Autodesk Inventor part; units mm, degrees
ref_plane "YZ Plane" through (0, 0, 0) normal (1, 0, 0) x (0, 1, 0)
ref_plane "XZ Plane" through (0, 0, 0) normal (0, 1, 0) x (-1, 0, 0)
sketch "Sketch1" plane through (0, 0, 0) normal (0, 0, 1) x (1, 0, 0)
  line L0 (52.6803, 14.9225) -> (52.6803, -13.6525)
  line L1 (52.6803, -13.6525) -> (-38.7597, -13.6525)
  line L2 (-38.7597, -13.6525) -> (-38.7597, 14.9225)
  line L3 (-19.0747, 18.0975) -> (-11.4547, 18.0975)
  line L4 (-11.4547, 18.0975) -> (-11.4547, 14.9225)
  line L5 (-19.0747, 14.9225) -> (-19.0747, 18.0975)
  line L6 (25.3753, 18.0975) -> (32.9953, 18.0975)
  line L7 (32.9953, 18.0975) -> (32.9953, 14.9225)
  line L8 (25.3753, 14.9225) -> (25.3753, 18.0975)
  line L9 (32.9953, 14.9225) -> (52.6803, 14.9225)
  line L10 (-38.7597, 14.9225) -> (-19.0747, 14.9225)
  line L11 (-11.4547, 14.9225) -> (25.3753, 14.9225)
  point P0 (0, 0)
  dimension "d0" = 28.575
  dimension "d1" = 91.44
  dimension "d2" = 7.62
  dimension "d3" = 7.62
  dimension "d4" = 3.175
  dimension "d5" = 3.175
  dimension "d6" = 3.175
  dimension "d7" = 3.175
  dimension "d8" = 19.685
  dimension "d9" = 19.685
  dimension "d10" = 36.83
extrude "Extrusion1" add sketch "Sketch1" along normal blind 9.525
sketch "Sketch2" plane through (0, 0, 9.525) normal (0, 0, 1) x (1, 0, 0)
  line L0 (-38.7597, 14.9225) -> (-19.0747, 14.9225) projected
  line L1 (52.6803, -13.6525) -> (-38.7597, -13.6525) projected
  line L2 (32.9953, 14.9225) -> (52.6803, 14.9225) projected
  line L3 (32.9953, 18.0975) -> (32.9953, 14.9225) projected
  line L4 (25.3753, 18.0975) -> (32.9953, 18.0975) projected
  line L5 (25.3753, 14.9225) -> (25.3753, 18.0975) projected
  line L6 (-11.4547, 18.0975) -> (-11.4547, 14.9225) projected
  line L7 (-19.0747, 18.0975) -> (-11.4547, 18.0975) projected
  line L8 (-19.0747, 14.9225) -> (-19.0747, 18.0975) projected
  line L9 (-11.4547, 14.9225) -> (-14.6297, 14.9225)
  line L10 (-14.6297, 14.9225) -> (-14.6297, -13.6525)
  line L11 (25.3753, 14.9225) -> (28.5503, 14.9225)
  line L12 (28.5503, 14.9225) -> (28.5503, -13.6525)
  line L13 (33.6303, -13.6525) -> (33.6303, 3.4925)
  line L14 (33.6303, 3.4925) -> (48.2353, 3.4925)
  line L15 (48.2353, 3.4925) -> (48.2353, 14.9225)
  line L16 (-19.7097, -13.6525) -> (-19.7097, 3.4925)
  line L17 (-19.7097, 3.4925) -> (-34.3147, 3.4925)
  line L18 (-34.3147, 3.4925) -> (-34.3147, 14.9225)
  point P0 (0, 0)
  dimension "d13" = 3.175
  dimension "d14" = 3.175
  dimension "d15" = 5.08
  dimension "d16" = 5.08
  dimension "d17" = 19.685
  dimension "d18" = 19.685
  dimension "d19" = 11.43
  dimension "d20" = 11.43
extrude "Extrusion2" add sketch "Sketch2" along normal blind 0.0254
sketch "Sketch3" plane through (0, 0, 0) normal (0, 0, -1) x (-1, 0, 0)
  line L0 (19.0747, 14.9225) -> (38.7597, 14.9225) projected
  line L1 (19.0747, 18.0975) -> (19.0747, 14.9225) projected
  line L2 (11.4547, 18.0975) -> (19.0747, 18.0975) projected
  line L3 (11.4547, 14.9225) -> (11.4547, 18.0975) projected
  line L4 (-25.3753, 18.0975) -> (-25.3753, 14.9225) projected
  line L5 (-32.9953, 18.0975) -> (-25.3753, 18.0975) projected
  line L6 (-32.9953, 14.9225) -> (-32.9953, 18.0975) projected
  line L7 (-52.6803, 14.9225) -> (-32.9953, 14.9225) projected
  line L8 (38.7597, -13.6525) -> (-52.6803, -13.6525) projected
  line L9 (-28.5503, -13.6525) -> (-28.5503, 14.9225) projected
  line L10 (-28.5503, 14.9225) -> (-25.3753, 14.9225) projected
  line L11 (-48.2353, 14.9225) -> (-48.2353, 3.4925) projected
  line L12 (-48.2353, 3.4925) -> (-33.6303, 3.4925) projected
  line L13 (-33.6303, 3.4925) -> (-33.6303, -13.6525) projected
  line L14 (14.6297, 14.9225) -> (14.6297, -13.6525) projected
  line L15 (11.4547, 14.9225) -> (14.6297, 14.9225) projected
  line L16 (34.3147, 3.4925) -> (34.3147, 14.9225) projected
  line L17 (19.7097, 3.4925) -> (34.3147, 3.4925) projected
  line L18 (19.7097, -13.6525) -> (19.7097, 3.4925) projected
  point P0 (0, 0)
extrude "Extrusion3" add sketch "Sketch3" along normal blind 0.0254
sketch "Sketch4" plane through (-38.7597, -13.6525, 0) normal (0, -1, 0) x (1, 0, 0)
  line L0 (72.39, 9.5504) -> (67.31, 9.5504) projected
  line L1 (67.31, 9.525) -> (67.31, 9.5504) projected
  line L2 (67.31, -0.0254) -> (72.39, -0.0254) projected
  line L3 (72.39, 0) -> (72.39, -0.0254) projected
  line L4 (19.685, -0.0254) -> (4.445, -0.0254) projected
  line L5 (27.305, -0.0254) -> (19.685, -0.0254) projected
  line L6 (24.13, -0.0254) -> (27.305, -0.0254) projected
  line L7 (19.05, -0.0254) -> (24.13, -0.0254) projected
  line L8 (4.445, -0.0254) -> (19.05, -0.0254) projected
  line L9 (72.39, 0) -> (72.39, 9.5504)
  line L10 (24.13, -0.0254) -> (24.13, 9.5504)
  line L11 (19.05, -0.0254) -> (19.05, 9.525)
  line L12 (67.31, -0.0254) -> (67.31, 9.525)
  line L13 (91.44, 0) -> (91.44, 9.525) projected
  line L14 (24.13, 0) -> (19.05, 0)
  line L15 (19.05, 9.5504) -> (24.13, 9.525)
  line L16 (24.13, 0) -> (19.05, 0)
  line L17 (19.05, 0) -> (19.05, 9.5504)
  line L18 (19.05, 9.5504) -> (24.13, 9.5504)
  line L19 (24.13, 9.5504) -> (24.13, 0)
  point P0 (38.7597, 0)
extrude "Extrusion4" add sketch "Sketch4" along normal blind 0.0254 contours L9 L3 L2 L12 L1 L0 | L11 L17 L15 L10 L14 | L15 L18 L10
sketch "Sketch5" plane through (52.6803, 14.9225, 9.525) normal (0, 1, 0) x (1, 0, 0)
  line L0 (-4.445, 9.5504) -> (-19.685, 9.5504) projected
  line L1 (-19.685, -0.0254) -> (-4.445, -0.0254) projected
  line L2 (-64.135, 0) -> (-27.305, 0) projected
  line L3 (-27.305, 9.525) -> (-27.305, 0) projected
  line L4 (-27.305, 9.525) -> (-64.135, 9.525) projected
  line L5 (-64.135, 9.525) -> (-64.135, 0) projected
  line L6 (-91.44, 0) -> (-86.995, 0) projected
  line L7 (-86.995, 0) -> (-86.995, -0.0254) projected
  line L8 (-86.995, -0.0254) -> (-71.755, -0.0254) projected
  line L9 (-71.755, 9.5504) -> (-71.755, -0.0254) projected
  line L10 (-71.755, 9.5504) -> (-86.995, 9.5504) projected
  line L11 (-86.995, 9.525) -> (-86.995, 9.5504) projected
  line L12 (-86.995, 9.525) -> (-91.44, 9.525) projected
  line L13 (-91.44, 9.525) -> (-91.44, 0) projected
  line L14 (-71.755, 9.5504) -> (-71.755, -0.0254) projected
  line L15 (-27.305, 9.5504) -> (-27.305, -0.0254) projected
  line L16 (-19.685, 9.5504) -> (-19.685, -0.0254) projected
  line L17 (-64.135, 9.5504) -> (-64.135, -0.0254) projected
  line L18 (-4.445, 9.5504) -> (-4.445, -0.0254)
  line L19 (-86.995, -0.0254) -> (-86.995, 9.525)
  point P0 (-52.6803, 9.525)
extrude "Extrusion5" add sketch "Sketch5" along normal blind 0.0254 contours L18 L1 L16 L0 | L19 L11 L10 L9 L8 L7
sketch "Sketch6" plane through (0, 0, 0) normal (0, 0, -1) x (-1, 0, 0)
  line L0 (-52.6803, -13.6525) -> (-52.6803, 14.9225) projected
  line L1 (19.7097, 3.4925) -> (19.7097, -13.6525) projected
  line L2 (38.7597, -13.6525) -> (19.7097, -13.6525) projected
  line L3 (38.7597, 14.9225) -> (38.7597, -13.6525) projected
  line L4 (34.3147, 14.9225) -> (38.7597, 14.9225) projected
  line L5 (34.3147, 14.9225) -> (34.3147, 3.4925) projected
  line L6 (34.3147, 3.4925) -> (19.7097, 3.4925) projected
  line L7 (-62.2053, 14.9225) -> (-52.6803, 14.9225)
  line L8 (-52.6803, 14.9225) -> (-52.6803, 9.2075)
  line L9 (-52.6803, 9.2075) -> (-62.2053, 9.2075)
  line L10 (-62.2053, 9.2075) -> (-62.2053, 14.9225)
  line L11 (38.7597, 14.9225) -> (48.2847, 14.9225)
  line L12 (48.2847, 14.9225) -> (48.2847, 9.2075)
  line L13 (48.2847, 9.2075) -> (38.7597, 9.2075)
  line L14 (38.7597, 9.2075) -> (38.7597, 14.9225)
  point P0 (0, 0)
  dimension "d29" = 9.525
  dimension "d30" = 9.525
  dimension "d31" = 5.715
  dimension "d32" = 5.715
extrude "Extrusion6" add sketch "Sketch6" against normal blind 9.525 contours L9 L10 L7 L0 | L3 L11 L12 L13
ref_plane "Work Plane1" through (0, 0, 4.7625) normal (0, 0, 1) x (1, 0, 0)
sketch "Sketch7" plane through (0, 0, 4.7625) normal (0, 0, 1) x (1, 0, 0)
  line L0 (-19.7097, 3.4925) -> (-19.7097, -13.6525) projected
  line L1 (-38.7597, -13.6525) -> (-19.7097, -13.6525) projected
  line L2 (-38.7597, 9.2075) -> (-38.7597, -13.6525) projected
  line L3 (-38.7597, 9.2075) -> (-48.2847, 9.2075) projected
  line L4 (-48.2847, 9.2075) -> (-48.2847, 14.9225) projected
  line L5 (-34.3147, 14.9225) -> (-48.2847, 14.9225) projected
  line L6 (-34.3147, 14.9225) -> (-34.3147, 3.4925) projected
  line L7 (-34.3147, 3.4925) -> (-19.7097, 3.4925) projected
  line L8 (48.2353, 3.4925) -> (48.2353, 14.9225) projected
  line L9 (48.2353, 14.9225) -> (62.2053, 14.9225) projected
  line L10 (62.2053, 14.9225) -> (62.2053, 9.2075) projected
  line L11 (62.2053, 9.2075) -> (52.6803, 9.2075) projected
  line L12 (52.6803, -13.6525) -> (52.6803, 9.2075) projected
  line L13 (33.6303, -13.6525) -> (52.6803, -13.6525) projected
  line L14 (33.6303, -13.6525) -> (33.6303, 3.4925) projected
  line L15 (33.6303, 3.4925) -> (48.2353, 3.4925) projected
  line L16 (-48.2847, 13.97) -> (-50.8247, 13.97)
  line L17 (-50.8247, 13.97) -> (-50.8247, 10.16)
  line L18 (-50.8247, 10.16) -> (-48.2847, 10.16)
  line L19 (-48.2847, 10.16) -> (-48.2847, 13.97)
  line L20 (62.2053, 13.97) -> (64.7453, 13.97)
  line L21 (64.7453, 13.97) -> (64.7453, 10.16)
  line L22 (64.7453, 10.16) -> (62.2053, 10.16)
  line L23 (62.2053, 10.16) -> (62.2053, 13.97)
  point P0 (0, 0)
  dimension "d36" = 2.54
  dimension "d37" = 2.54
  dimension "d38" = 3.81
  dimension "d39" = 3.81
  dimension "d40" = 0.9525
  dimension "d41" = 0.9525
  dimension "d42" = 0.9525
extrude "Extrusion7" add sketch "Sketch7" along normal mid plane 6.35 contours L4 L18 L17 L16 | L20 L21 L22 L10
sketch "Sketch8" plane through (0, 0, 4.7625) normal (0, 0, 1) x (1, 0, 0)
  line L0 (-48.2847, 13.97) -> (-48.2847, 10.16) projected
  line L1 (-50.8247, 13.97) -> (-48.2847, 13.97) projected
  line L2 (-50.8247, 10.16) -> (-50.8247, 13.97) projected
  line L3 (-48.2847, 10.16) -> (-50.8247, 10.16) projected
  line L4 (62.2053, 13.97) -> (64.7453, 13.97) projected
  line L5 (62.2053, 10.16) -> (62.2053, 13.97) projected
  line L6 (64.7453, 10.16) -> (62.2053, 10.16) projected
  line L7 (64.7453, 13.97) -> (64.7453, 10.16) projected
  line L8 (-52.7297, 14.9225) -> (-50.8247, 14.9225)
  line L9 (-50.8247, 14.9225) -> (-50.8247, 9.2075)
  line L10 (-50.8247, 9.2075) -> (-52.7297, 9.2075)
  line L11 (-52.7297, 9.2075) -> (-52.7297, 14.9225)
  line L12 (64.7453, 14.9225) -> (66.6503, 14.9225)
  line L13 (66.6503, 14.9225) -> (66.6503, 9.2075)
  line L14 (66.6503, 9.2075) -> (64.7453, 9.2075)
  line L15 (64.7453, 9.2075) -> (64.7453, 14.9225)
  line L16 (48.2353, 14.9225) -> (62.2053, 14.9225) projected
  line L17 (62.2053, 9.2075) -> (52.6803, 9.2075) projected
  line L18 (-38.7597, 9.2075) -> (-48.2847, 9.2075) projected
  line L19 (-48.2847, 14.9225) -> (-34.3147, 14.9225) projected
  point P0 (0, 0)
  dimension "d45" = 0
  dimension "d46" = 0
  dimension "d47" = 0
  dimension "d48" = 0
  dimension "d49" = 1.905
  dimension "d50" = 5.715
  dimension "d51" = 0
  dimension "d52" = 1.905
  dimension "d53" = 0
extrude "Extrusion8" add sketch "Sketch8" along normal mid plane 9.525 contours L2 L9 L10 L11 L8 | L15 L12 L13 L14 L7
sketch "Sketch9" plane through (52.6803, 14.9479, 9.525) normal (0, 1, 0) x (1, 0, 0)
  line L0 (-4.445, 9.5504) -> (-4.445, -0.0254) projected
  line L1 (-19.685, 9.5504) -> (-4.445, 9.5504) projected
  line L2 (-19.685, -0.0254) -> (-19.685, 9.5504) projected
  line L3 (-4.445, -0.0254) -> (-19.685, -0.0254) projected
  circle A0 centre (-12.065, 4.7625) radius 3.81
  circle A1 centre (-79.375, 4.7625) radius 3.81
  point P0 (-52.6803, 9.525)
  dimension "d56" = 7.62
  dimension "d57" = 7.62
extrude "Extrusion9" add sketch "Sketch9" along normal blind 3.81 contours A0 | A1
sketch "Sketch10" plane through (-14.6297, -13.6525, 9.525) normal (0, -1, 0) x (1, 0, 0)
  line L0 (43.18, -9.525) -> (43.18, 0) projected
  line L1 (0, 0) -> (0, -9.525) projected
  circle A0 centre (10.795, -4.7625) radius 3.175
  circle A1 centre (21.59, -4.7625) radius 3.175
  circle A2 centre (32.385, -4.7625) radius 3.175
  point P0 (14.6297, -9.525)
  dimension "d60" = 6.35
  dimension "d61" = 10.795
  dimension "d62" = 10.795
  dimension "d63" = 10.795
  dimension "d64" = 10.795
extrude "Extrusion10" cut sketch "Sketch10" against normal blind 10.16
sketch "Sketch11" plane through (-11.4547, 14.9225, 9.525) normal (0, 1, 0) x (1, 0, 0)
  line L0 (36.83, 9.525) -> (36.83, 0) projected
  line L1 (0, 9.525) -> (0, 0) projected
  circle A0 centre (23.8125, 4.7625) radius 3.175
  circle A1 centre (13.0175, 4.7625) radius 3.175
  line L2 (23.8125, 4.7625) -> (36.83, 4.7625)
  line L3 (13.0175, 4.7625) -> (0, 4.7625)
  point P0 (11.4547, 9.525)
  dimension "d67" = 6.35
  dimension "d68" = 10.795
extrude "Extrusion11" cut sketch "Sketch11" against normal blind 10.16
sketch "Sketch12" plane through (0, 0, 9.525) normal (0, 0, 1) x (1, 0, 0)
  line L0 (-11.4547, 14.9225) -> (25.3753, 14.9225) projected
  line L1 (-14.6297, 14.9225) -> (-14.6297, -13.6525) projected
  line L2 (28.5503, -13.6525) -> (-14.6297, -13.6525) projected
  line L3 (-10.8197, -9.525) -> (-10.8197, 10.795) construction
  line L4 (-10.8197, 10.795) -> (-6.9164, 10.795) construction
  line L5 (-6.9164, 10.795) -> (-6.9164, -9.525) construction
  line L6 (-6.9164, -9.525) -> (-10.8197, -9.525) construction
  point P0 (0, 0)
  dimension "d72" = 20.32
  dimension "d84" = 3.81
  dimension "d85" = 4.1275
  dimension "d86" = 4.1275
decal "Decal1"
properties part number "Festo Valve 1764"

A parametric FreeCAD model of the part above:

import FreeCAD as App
import Part
import Sketcher
Q = App.Units.Quantity


def add_polygon(sketch, points):
    """Adds a closed chain of lines whose ends are joined by coincident constraints."""
    first, n = sketch.GeometryCount, len(points)
    for a, b in zip(points, points[1:] + points[:1]):
        sketch.addGeometry(Part.LineSegment(App.Vector(*a, 0), App.Vector(*b, 0)), False)
    for i in range(n):
        sketch.addConstraint(Sketcher.Constraint("Coincident", first + i, 2, first + (i + 1) % n, 1))

doc = App.newDocument("Part")
body = doc.addObject("PartDesign::Body", "Body")

sketch1 = doc.addObject("Sketcher::SketchObject", "Sketch")
body.addObject(sketch1)
sketch1.AttachmentSupport = (doc.XY_Plane, [""])
sketch1.MapMode = "FlatFace"
add_polygon(sketch1, [(52.7, -13.7), (52.7, 14.9), (33, 14.9), (33, 18.1), (25.4, 18.1), (25.4, 14.9), (-11.5, 14.9), (-11.5, 18.1), (-19.1, 18.1), (-19.1, 14.9), (-38.8, 14.9), (-38.8, -13.7)])
sketch1.addConstraint([
    Sketcher.Constraint("Vertical", 0),
    Sketcher.Constraint("Horizontal", 1),
    Sketcher.Constraint("Vertical", 2),
    Sketcher.Constraint("Horizontal", 3),
    Sketcher.Constraint("Vertical", 4),
    Sketcher.Constraint("Horizontal", 5),
    Sketcher.Constraint("Vertical", 6),
    Sketcher.Constraint("Horizontal", 7),
    Sketcher.Constraint("Vertical", 8),
    Sketcher.Constraint("Horizontal", 9),
    Sketcher.Constraint("Vertical", 10),
    Sketcher.Constraint("Horizontal", 11),
    Sketcher.Constraint("Horizontal", 1, 2, 4, 2),
    Sketcher.Constraint("Horizontal", 3, 2, 6, 2),
    Sketcher.Constraint("Horizontal", 5, 2, 8, 2),
    Sketcher.Constraint("Equal", 3, 7),
    Sketcher.Constraint("Equal", 1, 9),
    Sketcher.Constraint("DistanceX", 3, 2, 3, 1, Q("0.3 in")),
    Sketcher.Constraint("DistanceX", 11, 1, 11, 2, Q("3.6 in")),
    Sketcher.Constraint("DistanceX", 5, 2, 5, 1, Q("1.45 in")),
    Sketcher.Constraint("DistanceY", 0, 1, 0, 2, Q("1.125 in")),
    Sketcher.Constraint("DistanceY", 2, 1, 2, 2, Q("0.125 in")),
    Sketcher.Constraint("DistanceY", -1, 1, 0, 2, Q("0.5875 in")),
    Sketcher.Constraint("DistanceX", -1, 1, 0, 2, Q("52.6803 mm")),
])
pad1 = doc.addObject("PartDesign::Pad", "Pad")
body.addObject(pad1)
pad1.Profile = sketch1
pad1.Length = Q("0.375 in")

sketch2 = doc.addObject("Sketcher::SketchObject", "Sketch001")
body.addObject(sketch2)
sketch2.AttachmentSupport = (doc.XY_Plane, [""])
sketch2.MapMode = "FlatFace"
sketch2.AttachmentOffset = App.Placement(App.Vector(0, 0, 0.375 * 25.4), App.Rotation())
add_polygon(sketch2, [(28.6, 14.9), (28.6, -13.7), (33.6, -13.7), (33.6, 3.5), (48.2, 3.5), (48.2, 14.9), (33, 14.9), (33, 18.1), (25.4, 18.1), (25.4, 14.9)])
add_polygon(sketch2, [(-19.1, 14.9), (-34.3, 14.9), (-34.3, 3.5), (-19.7, 3.5), (-19.7, -13.7), (-14.6, -13.7), (-14.6, 14.9), (-11.5, 14.9), (-11.5, 18.1), (-19.1, 18.1)])
sketch2.addConstraint([
    Sketcher.Constraint("Vertical", 0),
    Sketcher.Constraint("Horizontal", 1),
    Sketcher.Constraint("Vertical", 2),
    Sketcher.Constraint("Horizontal", 3),
    Sketcher.Constraint("Vertical", 4),
    Sketcher.Constraint("Horizontal", 5),
    Sketcher.Constraint("Vertical", 6),
    Sketcher.Constraint("Horizontal", 7),
    Sketcher.Constraint("Vertical", 8),
    Sketcher.Constraint("Horizontal", 9),
    Sketcher.Constraint("Horizontal", 10),
    Sketcher.Constraint("Vertical", 11),
    Sketcher.Constraint("Horizontal", 12),
    Sketcher.Constraint("Vertical", 13),
    Sketcher.Constraint("Horizontal", 14),
    Sketcher.Constraint("Vertical", 15),
    Sketcher.Constraint("Horizontal", 16),
    Sketcher.Constraint("Vertical", 17),
    Sketcher.Constraint("Horizontal", 18),
    Sketcher.Constraint("Vertical", 19),
    Sketcher.Constraint("Horizontal", 5, 2, 8, 2),
    Sketcher.Constraint("Horizontal", 9, 2, 10, 2),
    Sketcher.Constraint("Horizontal", 3, 2, 11, 2),
    Sketcher.Constraint("Horizontal", 1, 2, 13, 2),
    Sketcher.Constraint("Horizontal", 10, 2, 15, 2),
    Sketcher.Constraint("Horizontal", 7, 2, 17, 2),
    Sketcher.Constraint("Equal", 5, 10),
    Sketcher.Constraint("Equal", 3, 12),
    Sketcher.Constraint("Equal", 1, 14),
    Sketcher.Constraint("Equal", 9, 16),
    Sketcher.Constraint("Equal", 16, 6),
    Sketcher.Constraint("DistanceX", 1, 1, 1, 2, Q("0.2 in")),
    Sketcher.Constraint("DistanceY", 4, 1, 4, 2, Q("0.45 in")),
    Sketcher.Constraint("DistanceX", 9, 1, 9, 2, Q("0.125 in")),
    Sketcher.Constraint("DistanceX", 5, 2, 5, 1, Q("0.6 in")),
    Sketcher.Constraint("DistanceX", 7, 2, 7, 1, Q("0.3 in")),
    Sketcher.Constraint("DistanceX", 12, 2, 9, 2, Q("1.9 in")),
    Sketcher.Constraint("DistanceY", 0, 2, 0, 1, Q("1.125 in")),
    Sketcher.Constraint("DistanceY", 0, 2, -1, 1, Q("0.5375 in")),
    Sketcher.Constraint("DistanceX", -1, 1, 0, 2, Q("28.5503 mm")),
])
pad2 = doc.addObject("PartDesign::Pad", "Pad001")
body.addObject(pad2)
pad2.Profile = sketch2
pad2.Length = Q("0.001 in")

sketch3 = doc.addObject("Sketcher::SketchObject", "Sketch002")
body.addObject(sketch3)
sketch3.AttachmentSupport = (doc.XY_Plane, [""])
sketch3.MapMode = "FlatFace"
add_polygon(sketch3, [(33.6, -13.7), (28.6, -13.7), (28.6, 14.9), (25.4, 14.9), (25.4, 18.1), (33, 18.1), (33, 14.9), (48.2, 14.9), (48.2, 3.5), (33.6, 3.5)])
add_polygon(sketch3, [(-34.3, 14.9), (-19.1, 14.9), (-19.1, 18.1), (-11.5, 18.1), (-11.5, 14.9), (-14.6, 14.9), (-14.6, -13.7), (-19.7, -13.7), (-19.7, 3.5), (-34.3, 3.5)])
sketch3.addConstraint([
    Sketcher.Constraint("Horizontal", 0),
    Sketcher.Constraint("Vertical", 1),
    Sketcher.Constraint("Horizontal", 2),
    Sketcher.Constraint("Vertical", 3),
    Sketcher.Constraint("Horizontal", 4),
    Sketcher.Constraint("Vertical", 5),
    Sketcher.Constraint("Horizontal", 6),
    Sketcher.Constraint("Vertical", 7),
    Sketcher.Constraint("Horizontal", 8),
    Sketcher.Constraint("Vertical", 9),
    Sketcher.Constraint("Horizontal", 10),
    Sketcher.Constraint("Vertical", 11),
    Sketcher.Constraint("Horizontal", 12),
    Sketcher.Constraint("Vertical", 13),
    Sketcher.Constraint("Horizontal", 14),
    Sketcher.Constraint("Vertical", 15),
    Sketcher.Constraint("Horizontal", 16),
    Sketcher.Constraint("Vertical", 17),
    Sketcher.Constraint("Horizontal", 18),
    Sketcher.Constraint("Vertical", 19),
    Sketcher.Constraint("Horizontal", 2, 2, 5, 2),
    Sketcher.Constraint("Horizontal", 6, 2, 10, 2),
    Sketcher.Constraint("Horizontal", 4, 2, 11, 2),
    Sketcher.Constraint("Horizontal", 10, 2, 13, 2),
    Sketcher.Constraint("Horizontal", 9, 2, 15, 2),
    Sketcher.Constraint("Horizontal", 8, 2, 17, 2),
    Sketcher.Constraint("Equal", 6, 10),
    Sketcher.Constraint("Equal", 4, 12),
    Sketcher.Constraint("Equal", 2, 14),
    Sketcher.Constraint("Equal", 0, 16),
    Sketcher.Constraint("Equal", 14, 3),
    Sketcher.Constraint("DistanceX", 0, 2, 0, 1, Q("0.2 in")),
    Sketcher.Constraint("DistanceX", 4, 1, 4, 2, Q("0.3 in")),
    Sketcher.Constraint("DistanceX", 6, 1, 6, 2, Q("0.6 in")),
    Sketcher.Constraint("DistanceY", 7, 2, 7, 1, Q("0.45 in")),
    Sketcher.Constraint("DistanceX", 2, 2, 2, 1, Q("0.125 in")),
    Sketcher.Constraint("DistanceY", 1, 1, 1, 2, Q("1.125 in")),
    Sketcher.Constraint("DistanceX", 10, 2, 2, 2, Q("1.75 in")),
    Sketcher.Constraint("DistanceY", 0, 2, -1, 1, Q("0.5375 in")),
    Sketcher.Constraint("DistanceX", -1, 1, 0, 2, Q("28.5503 mm")),
])
pad3 = doc.addObject("PartDesign::Pad", "Pad002")
body.addObject(pad3)
pad3.Profile = sketch3
pad3.Length = Q("0.001 in")
pad3.Reversed = True

sketch4 = doc.addObject("Sketcher::SketchObject", "Sketch003")
body.addObject(sketch4)
sketch4.AttachmentSupport = (doc.XZ_Plane, [""])
sketch4.MapMode = "FlatFace"
sketch4.AttachmentOffset = App.Placement(App.Vector(0, 0, 0.5375 * 25.4), App.Rotation())
add_polygon(sketch4, [(34, 0), (34, 10), (29, 10), (29, 0)])
add_polygon(sketch4, [(-20, 0), (-15, 0), (-15, 10), (-20, 10)])
sketch4.addConstraint([
    Sketcher.Constraint("Vertical", 0),
    Sketcher.Constraint("Horizontal", 1),
    Sketcher.Constraint("Vertical", 2),
    Sketcher.Constraint("Horizontal", 3),
    Sketcher.Constraint("Horizontal", 4),
    Sketcher.Constraint("Vertical", 5),
    Sketcher.Constraint("Horizontal", 6),
    Sketcher.Constraint("Vertical", 7),
    Sketcher.Constraint("PointOnObject", 4, 2, -1),
    Sketcher.Constraint("Horizontal", 1, 2, 5, 2),
    Sketcher.Constraint("Equal", 3, 4),
    Sketcher.Constraint("DistanceX", 1, 2, 1, 1, Q("0.2 in")),
    Sketcher.Constraint("DistanceX", 4, 2, 2, 2, Q("1.7 in")),
    Sketcher.Constraint("DistanceY", 0, 1, 0, 2, Q("0.377 in")),
    Sketcher.Constraint("DistanceY", 5, 1, 5, 2, Q("0.376 in")),
    Sketcher.Constraint("DistanceX", -1, 1, 0, 2, Q("33.6303 mm")),
])
pad4 = doc.addObject("PartDesign::Pad", "Pad003")
body.addObject(pad4)
pad4.Profile = sketch4
pad4.Length = Q("0.001 in")

sketch5 = doc.addObject("Sketcher::SketchObject", "Sketch004")
body.addObject(sketch5)
sketch5.AttachmentSupport = (doc.XZ_Plane, [""])
sketch5.MapMode = "FlatFace"
sketch5.AttachmentOffset = App.Placement(App.Vector(0, 0, -0.5875 * 25.4), App.Rotation())
add_polygon(sketch5, [(48, 10), (48, 0), (33, 0), (33, 10)])
add_polygon(sketch5, [(-34, 0), (-34, 10), (-19, 10), (-19, 0)])
sketch5.addConstraint([
    Sketcher.Constraint("Vertical", 0),
    Sketcher.Constraint("Horizontal", 1),
    Sketcher.Constraint("Vertical", 2),
    Sketcher.Constraint("Horizontal", 3),
    Sketcher.Constraint("Vertical", 4),
    Sketcher.Constraint("Horizontal", 5),
    Sketcher.Constraint("Vertical", 6),
    Sketcher.Constraint("Horizontal", 7),
    Sketcher.Constraint("Horizontal", 3, 2, 4, 2),
    Sketcher.Constraint("Horizontal", 1, 2, 6, 2),
    Sketcher.Constraint("Equal", 3, 5),
    Sketcher.Constraint("DistanceX", 1, 2, 1, 1, Q("0.6 in")),
    Sketcher.Constraint("DistanceY", 0, 2, 0, 1, Q("0.377 in")),
    Sketcher.Constraint("DistanceX", 4, 2, 2, 2, Q("2.65 in")),
    Sketcher.Constraint("DistanceY", 0, 2, -1, 1, Q("0.001 in")),
    Sketcher.Constraint("DistanceX", -1, 1, 0, 2, Q("48.2353 mm")),
])
pad5 = doc.addObject("PartDesign::Pad", "Pad004")
body.addObject(pad5)
pad5.Profile = sketch5
pad5.Length = Q("0.001 in")
pad5.Reversed = True

sketch6 = doc.addObject("Sketcher::SketchObject", "Sketch005")
body.addObject(sketch6)
sketch6.AttachmentSupport = (doc.XY_Plane, [""])
sketch6.MapMode = "FlatFace"
add_polygon(sketch6, [(62, 9), (53, 9), (53, 15), (62, 15)])
add_polygon(sketch6, [(-39, 15), (-39, 9), (-48, 9), (-48, 15)])
sketch6.addConstraint([
    Sketcher.Constraint("Horizontal", 0),
    Sketcher.Constraint("Vertical", 1),
    Sketcher.Constraint("Horizontal", 2),
    Sketcher.Constraint("Vertical", 3),
    Sketcher.Constraint("Vertical", 4),
    Sketcher.Constraint("Horizontal", 5),
    Sketcher.Constraint("Vertical", 6),
    Sketcher.Constraint("Horizontal", 7),
    Sketcher.Constraint("Horizontal", 3, 2, 4, 2),
    Sketcher.Constraint("Horizontal", 2, 2, 6, 2),
    Sketcher.Constraint("Equal", 2, 5),
    Sketcher.Constraint("DistanceX", 0, 2, 0, 1, Q("0.375 in")),
    Sketcher.Constraint("DistanceY", 1, 1, 1, 2, Q("0.225 in")),
    Sketcher.Constraint("DistanceX", 4, 2, 0, 2, Q("3.6 in")),
    Sketcher.Constraint("DistanceY", -1, 1, 0, 2, Q("0.3625 in")),
    Sketcher.Constraint("DistanceX", -1, 1, 0, 2, Q("52.6803 mm")),
])
pad6 = doc.addObject("PartDesign::Pad", "Pad005")
body.addObject(pad6)
pad6.Profile = sketch6
pad6.Length = Q("0.375 in")

sketch7 = doc.addObject("Sketcher::SketchObject", "Sketch006")
body.addObject(sketch7)
sketch7.AttachmentSupport = (doc.XY_Plane, [""])
sketch7.MapMode = "FlatFace"
sketch7.AttachmentOffset = App.Placement(App.Vector(0, 0, 0.1875 * 25.4), App.Rotation())
add_polygon(sketch7, [(-48.3, 10.2), (-48.3, 14), (-50.8, 14), (-50.8, 10.2)])
add_polygon(sketch7, [(64.7, 14), (62.2, 14), (62.2, 10.2), (64.7, 10.2)])
sketch7.addConstraint([
    Sketcher.Constraint("Vertical", 0),
    Sketcher.Constraint("Horizontal", 1),
    Sketcher.Constraint("Vertical", 2),
    Sketcher.Constraint("Horizontal", 3),
    Sketcher.Constraint("Horizontal", 4),
    Sketcher.Constraint("Vertical", 5),
    Sketcher.Constraint("Horizontal", 6),
    Sketcher.Constraint("Vertical", 7),
    Sketcher.Constraint("Horizontal", 1, 2, 4, 2),
    Sketcher.Constraint("Horizontal", 3, 2, 5, 2),
    Sketcher.Constraint("Equal", 3, 4),
    Sketcher.Constraint("DistanceX", 1, 2, 1, 1, Q("0.1 in")),
    Sketcher.Constraint("DistanceY", 0, 1, 0, 2, Q("0.15 in")),
    Sketcher.Constraint("DistanceY", -1, 1, 2, 2, Q("0.4 in")),
    Sketcher.Constraint("DistanceX", 0, 2, 4, 2, Q("4.35 in")),
    Sketcher.Constraint("DistanceX", 0, 2, -1, 1, Q("48.2847 mm")),
])
pad7 = doc.addObject("PartDesign::Pad", "Pad006")
body.addObject(pad7)
pad7.Profile = sketch7
pad7.Length = Q("0.25 in")
pad7.Midplane = True

sketch8 = doc.addObject("Sketcher::SketchObject", "Sketch007")
body.addObject(sketch8)
sketch8.AttachmentSupport = (doc.XY_Plane, [""])
sketch8.MapMode = "FlatFace"
sketch8.AttachmentOffset = App.Placement(App.Vector(0, 0, 0.1875 * 25.4), App.Rotation())
add_polygon(sketch8, [(-50.8, 9.2), (-50.8, 14.9), (-52.7, 14.9), (-52.7, 9.2)])
add_polygon(sketch8, [(64.7, 14.9), (64.7, 9.2), (66.7, 9.2), (66.7, 14.9)])
sketch8.addConstraint([
    Sketcher.Constraint("Vertical", 0),
    Sketcher.Constraint("Horizontal", 1),
    Sketcher.Constraint("Vertical", 2),
    Sketcher.Constraint("Horizontal", 3),
    Sketcher.Constraint("Vertical", 4),
    Sketcher.Constraint("Horizontal", 5),
    Sketcher.Constraint("Vertical", 6),
    Sketcher.Constraint("Horizontal", 7),
    Sketcher.Constraint("Horizontal", 3, 2, 4, 2),
    Sketcher.Constraint("Horizontal", 1, 2, 6, 2),
    Sketcher.Constraint("Equal", 3, 5),
    Sketcher.Constraint("DistanceX", 1, 2, 1, 1, Q("0.075 in")),
    Sketcher.Constraint("DistanceY", 0, 1, 0, 2, Q("0.225 in")),
    Sketcher.Constraint("DistanceX", 2, 2, 5, 2, Q("4.7 in")),
    Sketcher.Constraint("DistanceY", -1, 1, 0, 2, Q("0.5875 in")),
    Sketcher.Constraint("DistanceX", 0, 2, -1, 1, Q("50.8247 mm")),
])
pad8 = doc.addObject("PartDesign::Pad", "Pad007")
body.addObject(pad8)
pad8.Profile = sketch8
pad8.Length = Q("0.375 in")
pad8.Midplane = True

sketch9 = doc.addObject("Sketcher::SketchObject", "Sketch008")
body.addObject(sketch9)
sketch9.AttachmentSupport = (doc.XZ_Plane, [""])
sketch9.MapMode = "FlatFace"
sketch9.AttachmentOffset = App.Placement(App.Vector(0, 0, -0.5885 * 25.4), App.Rotation())
sketch9.addGeometry([
    Part.Circle(App.Vector(40.6, 4.8, 0), App.Vector(0, 0, 1), 3.8),
    Part.Circle(App.Vector(-26.7, 4.8, 0), App.Vector(0, 0, 1), 3.8),
], False)
sketch9.addConstraint([
    Sketcher.Constraint("Equal", 0, 1),
    Sketcher.Constraint("Horizontal", 0, 3, 1, 3),
    Sketcher.Constraint("Diameter", 0, Q("0.3 in")),
    Sketcher.Constraint("DistanceX", 1, 3, 0, 3, Q("2.65 in")),
    Sketcher.Constraint("DistanceY", -1, 1, 0, 3, Q("0.1875 in")),
    Sketcher.Constraint("DistanceX", -1, 1, 0, 3, Q("40.6153 mm")),
])
pad9 = doc.addObject("PartDesign::Pad", "Pad008")
body.addObject(pad9)
pad9.Profile = sketch9
pad9.Length = Q("0.15 in")
pad9.Reversed = True

sketch10 = doc.addObject("Sketcher::SketchObject", "Sketch009")
body.addObject(sketch10)
sketch10.AttachmentSupport = (doc.XZ_Plane, [""])
sketch10.MapMode = "FlatFace"
sketch10.AttachmentOffset = App.Placement(App.Vector(0, 0, 0.5375 * 25.4), App.Rotation())
sketch10.addGeometry([
    Part.Circle(App.Vector(-3.8, 4.8, 0), App.Vector(0, 0, 1), 3.2),
    Part.Circle(App.Vector(7, 4.8, 0), App.Vector(0, 0, 1), 3.2),
    Part.Circle(App.Vector(17.8, 4.8, 0), App.Vector(0, 0, 1), 3.2),
], False)
sketch10.addConstraint([
    Sketcher.Constraint("Equal", 0, 1),
    Sketcher.Constraint("Equal", 1, 2),
    Sketcher.Constraint("Horizontal", 0, 3, 1, 3),
    Sketcher.Constraint("Horizontal", 1, 3, 2, 3),
    Sketcher.Constraint("Diameter", 0, Q("0.25 in")),
    Sketcher.Constraint("DistanceX", 0, 3, 1, 3, Q("0.425 in")),
    Sketcher.Constraint("DistanceX", 1, 3, 2, 3, Q("0.425 in")),
    Sketcher.Constraint("DistanceY", -1, 1, 0, 3, Q("0.1875 in")),
    Sketcher.Constraint("DistanceX", 0, 3, -1, 1, Q("3.8347 mm")),
])
pocket1 = doc.addObject("PartDesign::Pocket", "Pocket")
body.addObject(pocket1)
pocket1.Profile = sketch10
pocket1.Length = Q("0.4 in")

sketch11 = doc.addObject("Sketcher::SketchObject", "Sketch010")
body.addObject(sketch11)
sketch11.AttachmentSupport = (doc.XZ_Plane, [""])
sketch11.MapMode = "FlatFace"
sketch11.AttachmentOffset = App.Placement(App.Vector(0, 0, -0.5875 * 25.4), App.Rotation())
sketch11.addGeometry([
    Part.Circle(App.Vector(12.4, 4.8, 0), App.Vector(0, 0, 1), 3.2),
    Part.Circle(App.Vector(1.6, 4.8, 0), App.Vector(0, 0, 1), 3.2),
], False)
sketch11.addConstraint([
    Sketcher.Constraint("Equal", 0, 1),
    Sketcher.Constraint("Horizontal", 0, 3, 1, 3),
    Sketcher.Constraint("Diameter", 0, Q("0.25 in")),
    Sketcher.Constraint("DistanceX", 1, 3, 0, 3, Q("0.425 in")),
    Sketcher.Constraint("DistanceY", -1, 1, 0, 3, Q("0.1875 in")),
    Sketcher.Constraint("DistanceX", -1, 1, 0, 3, Q("12.3578 mm")),
])
pocket2 = doc.addObject("PartDesign::Pocket", "Pocket001")
body.addObject(pocket2)
pocket2.Profile = sketch11
pocket2.Length = Q("0.4 in")
pocket2.Reversed = True

doc.recompute()
